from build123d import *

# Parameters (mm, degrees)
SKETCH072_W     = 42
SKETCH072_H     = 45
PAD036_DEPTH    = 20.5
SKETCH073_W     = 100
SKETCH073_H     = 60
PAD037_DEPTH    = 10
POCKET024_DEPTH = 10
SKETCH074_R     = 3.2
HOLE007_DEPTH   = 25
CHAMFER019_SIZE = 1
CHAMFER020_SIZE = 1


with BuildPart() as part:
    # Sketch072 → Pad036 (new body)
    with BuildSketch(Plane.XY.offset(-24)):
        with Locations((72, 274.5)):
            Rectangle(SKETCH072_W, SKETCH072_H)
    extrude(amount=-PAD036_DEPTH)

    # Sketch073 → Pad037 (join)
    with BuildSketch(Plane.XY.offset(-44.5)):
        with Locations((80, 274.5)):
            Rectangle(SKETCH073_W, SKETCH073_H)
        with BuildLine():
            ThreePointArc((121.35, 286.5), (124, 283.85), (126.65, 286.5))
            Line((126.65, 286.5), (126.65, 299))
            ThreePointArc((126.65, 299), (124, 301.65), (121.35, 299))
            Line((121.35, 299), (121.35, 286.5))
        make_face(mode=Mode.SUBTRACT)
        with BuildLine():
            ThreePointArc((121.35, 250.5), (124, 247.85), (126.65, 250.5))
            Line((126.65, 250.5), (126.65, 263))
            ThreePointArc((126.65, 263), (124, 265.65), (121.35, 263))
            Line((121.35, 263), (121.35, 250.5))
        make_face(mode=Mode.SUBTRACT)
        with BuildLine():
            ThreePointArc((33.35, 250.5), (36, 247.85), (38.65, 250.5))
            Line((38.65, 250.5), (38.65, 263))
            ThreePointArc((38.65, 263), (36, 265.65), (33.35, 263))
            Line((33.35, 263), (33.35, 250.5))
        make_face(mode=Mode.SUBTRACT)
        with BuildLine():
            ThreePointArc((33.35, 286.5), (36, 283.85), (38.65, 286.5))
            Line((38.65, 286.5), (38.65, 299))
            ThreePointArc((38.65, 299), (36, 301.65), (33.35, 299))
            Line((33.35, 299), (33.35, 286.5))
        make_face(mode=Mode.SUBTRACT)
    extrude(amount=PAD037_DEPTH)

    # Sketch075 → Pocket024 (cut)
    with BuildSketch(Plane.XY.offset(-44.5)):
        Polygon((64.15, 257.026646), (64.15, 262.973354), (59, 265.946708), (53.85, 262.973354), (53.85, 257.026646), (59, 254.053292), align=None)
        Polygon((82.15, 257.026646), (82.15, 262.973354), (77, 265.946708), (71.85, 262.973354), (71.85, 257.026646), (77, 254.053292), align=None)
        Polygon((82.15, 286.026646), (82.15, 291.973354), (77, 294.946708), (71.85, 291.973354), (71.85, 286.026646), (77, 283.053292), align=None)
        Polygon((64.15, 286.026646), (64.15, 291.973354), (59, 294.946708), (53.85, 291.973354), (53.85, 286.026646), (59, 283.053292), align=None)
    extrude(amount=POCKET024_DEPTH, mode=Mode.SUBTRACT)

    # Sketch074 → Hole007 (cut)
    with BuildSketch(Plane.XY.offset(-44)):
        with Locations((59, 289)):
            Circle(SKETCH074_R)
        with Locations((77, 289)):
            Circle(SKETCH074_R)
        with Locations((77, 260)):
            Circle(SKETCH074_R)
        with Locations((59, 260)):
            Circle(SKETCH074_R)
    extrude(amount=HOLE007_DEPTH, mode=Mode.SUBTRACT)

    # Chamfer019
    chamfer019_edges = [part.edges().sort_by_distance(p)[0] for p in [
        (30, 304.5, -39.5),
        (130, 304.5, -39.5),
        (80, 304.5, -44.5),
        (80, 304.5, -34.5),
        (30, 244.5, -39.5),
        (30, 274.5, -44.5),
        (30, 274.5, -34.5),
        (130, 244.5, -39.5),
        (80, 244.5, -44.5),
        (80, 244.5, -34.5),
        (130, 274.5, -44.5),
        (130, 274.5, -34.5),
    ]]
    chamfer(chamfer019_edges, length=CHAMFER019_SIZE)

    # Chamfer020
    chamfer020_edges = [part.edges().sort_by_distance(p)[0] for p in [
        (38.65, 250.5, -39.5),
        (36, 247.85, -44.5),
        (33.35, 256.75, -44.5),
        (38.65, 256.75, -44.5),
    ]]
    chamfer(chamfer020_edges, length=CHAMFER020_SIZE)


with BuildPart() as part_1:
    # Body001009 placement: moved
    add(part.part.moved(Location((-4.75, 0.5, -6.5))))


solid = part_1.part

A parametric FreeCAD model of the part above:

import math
import FreeCAD as App
import Part
import Sketcher
from FreeCAD import Vector
Q = App.Units.Quantity


def edges_at(feature, points):
    """Names of the edges that pass closest to the given points."""
    edges = feature.Shape.Edges
    near = lambda p: min(range(len(edges)), key=lambda i: edges[i].distToShape(Part.Vertex(*p))[0])
    return sorted({f"Edge{near(p) + 1}" for p in points})

doc = App.newDocument("Part")
body = doc.addObject("PartDesign::Body", "Body")

# Sketch on XY plane
sketch1 = body.newObject("Sketcher::SketchObject", "Sketch")
sketch1.AttachmentSupport = (doc.getObject("XY_Plane"), [""])
sketch1.MapMode = "FlatFace"
sketch1.AttachmentOffset = App.Placement(Vector(0, 0, -24), App.Rotation())
sketch1.addGeometry(Part.LineSegment(Vector(51, 297, 0), Vector(51, 252, 0)), False)
sketch1.addGeometry(Part.LineSegment(Vector(51, 252, 0), Vector(93, 252, 0)), False)
sketch1.addGeometry(Part.LineSegment(Vector(93, 252, 0), Vector(93, 297, 0)), False)
sketch1.addGeometry(Part.LineSegment(Vector(93, 297, 0), Vector(51, 297, 0)), False)
sketch1.addConstraint(Sketcher.Constraint("Coincident", 0, 2, 1, 1))
sketch1.addConstraint(Sketcher.Constraint("Coincident", 1, 2, 2, 1))
sketch1.addConstraint(Sketcher.Constraint("Coincident", 2, 2, 3, 1))
sketch1.addConstraint(Sketcher.Constraint("Coincident", 3, 2, 0, 1))
sketch1.addConstraint(Sketcher.Constraint("Vertical", 0))
sketch1.addConstraint(Sketcher.Constraint("Horizontal", 1))
sketch1.addConstraint(Sketcher.Constraint("Vertical", 2))
sketch1.addConstraint(Sketcher.Constraint("Horizontal", 3))
sketch1.addConstraint(Sketcher.Constraint("DistanceX", 1, 1, 1, 2, 42.0))
sketch1.addConstraint(Sketcher.Constraint("DistanceY", 0, 2, 0, 1, 45.0))
sketch1.addConstraint(Sketcher.Constraint("DistanceX", -1, 1, 0, 2, 51.0))
sketch1.addConstraint(Sketcher.Constraint("DistanceY", -1, 1, 0, 2, 252.0))
pad1 = body.newObject("PartDesign::Pad", "Pad")
pad1.Profile = sketch1
pad1.Length = 20.5
pad1.Reversed = True

# Sketch on XY plane
sketch2 = body.newObject("Sketcher::SketchObject", "Sketch001")
sketch2.AttachmentSupport = (doc.getObject("XY_Plane"), [""])
sketch2.MapMode = "FlatFace"
sketch2.AttachmentOffset = App.Placement(Vector(0, 0, -44.5), App.Rotation())
sketch2.addGeometry(Part.LineSegment(Vector(30, 304.5, 0), Vector(30, 244.5, 0)), False)
sketch2.addGeometry(Part.LineSegment(Vector(30, 244.5, 0), Vector(130, 244.5, 0)), False)
sketch2.addGeometry(Part.LineSegment(Vector(130, 244.5, 0), Vector(130, 304.5, 0)), False)
sketch2.addGeometry(Part.LineSegment(Vector(130, 304.5, 0), Vector(30, 304.5, 0)), False)
sketch2.addGeometry(Part.ArcOfCircle(Part.Circle(Vector(36, 250.5, 0), Vector(0, 0, 1), 2.6), math.radians(180), math.radians(360)), False)
sketch2.addGeometry(Part.LineSegment(Vector(33.4, 250.5, 0), Vector(33.4, 263, 0)), False)
sketch2.addGeometry(Part.ArcOfCircle(Part.Circle(Vector(36, 263, 0), Vector(0, 0, 1), 2.6), math.radians(0), math.radians(180)), False)
sketch2.addGeometry(Part.LineSegment(Vector(38.6, 263, 0), Vector(38.6, 250.5, 0)), False)
sketch2.addGeometry(Part.ArcOfCircle(Part.Circle(Vector(124, 250.5, 0), Vector(0, 0, 1), 2.6), math.radians(180), math.radians(360)), False)
sketch2.addGeometry(Part.LineSegment(Vector(121.3, 250.5, 0), Vector(121.3, 263, 0)), False)
sketch2.addGeometry(Part.ArcOfCircle(Part.Circle(Vector(124, 263, 0), Vector(0, 0, 1), 2.6), math.radians(0), math.radians(180)), False)
sketch2.addGeometry(Part.LineSegment(Vector(126.7, 263, 0), Vector(126.7, 250.5, 0)), False)
sketch2.addGeometry(Part.ArcOfCircle(Part.Circle(Vector(36, 286.5, 0), Vector(0, 0, 1), 2.6), math.radians(180), math.radians(360)), False)
sketch2.addGeometry(Part.LineSegment(Vector(33.4, 286.5, 0), Vector(33.4, 299, 0)), False)
sketch2.addGeometry(Part.ArcOfCircle(Part.Circle(Vector(36, 299, 0), Vector(0, 0, 1), 2.6), math.radians(0), math.radians(180)), False)
sketch2.addGeometry(Part.LineSegment(Vector(38.6, 299, 0), Vector(38.6, 286.5, 0)), False)
sketch2.addGeometry(Part.ArcOfCircle(Part.Circle(Vector(124, 286.5, 0), Vector(0, 0, 1), 2.6), math.radians(180), math.radians(360)), False)
sketch2.addGeometry(Part.LineSegment(Vector(121.3, 286.5, 0), Vector(121.3, 299, 0)), False)
sketch2.addGeometry(Part.ArcOfCircle(Part.Circle(Vector(124, 299, 0), Vector(0, 0, 1), 2.6), math.radians(0), math.radians(180)), False)
sketch2.addGeometry(Part.LineSegment(Vector(126.7, 299, 0), Vector(126.7, 286.5, 0)), False)
sketch2.addConstraint(Sketcher.Constraint("Coincident", 0, 2, 1, 1))
sketch2.addConstraint(Sketcher.Constraint("Coincident", 1, 2, 2, 1))
sketch2.addConstraint(Sketcher.Constraint("Coincident", 2, 2, 3, 1))
sketch2.addConstraint(Sketcher.Constraint("Coincident", 3, 2, 0, 1))
sketch2.addConstraint(Sketcher.Constraint("Tangent", 4, 1, 5, 1))
sketch2.addConstraint(Sketcher.Constraint("Tangent", 5, 2, 6, 2))
sketch2.addConstraint(Sketcher.Constraint("Tangent", 6, 1, 7, 1))
sketch2.addConstraint(Sketcher.Constraint("Tangent", 7, 2, 4, 2))
sketch2.addConstraint(Sketcher.Constraint("Tangent", 8, 1, 9, 1))
sketch2.addConstraint(Sketcher.Constraint("Tangent", 9, 2, 10, 2))
sketch2.addConstraint(Sketcher.Constraint("Tangent", 10, 1, 11, 1))
sketch2.addConstraint(Sketcher.Constraint("Tangent", 11, 2, 8, 2))
sketch2.addConstraint(Sketcher.Constraint("Tangent", 12, 1, 13, 1))
sketch2.addConstraint(Sketcher.Constraint("Tangent", 13, 2, 14, 2))
sketch2.addConstraint(Sketcher.Constraint("Tangent", 14, 1, 15, 1))
sketch2.addConstraint(Sketcher.Constraint("Tangent", 15, 2, 12, 2))
sketch2.addConstraint(Sketcher.Constraint("Tangent", 16, 1, 17, 1))
sketch2.addConstraint(Sketcher.Constraint("Tangent", 17, 2, 18, 2))
sketch2.addConstraint(Sketcher.Constraint("Tangent", 18, 1, 19, 1))
sketch2.addConstraint(Sketcher.Constraint("Tangent", 19, 2, 16, 2))
sketch2.addConstraint(Sketcher.Constraint("Vertical", 0))
sketch2.addConstraint(Sketcher.Constraint("Horizontal", 1))
sketch2.addConstraint(Sketcher.Constraint("Vertical", 2))
sketch2.addConstraint(Sketcher.Constraint("Horizontal", 3))
sketch2.addConstraint(Sketcher.Constraint("Vertical", 5))
sketch2.addConstraint(Sketcher.Constraint("Vertical", 7))
sketch2.addConstraint(Sketcher.Constraint("Vertical", 9))
sketch2.addConstraint(Sketcher.Constraint("Vertical", 11))
sketch2.addConstraint(Sketcher.Constraint("Vertical", 13))
sketch2.addConstraint(Sketcher.Constraint("Vertical", 15))
sketch2.addConstraint(Sketcher.Constraint("Vertical", 17))
sketch2.addConstraint(Sketcher.Constraint("Vertical", 19))
sketch2.addConstraint(Sketcher.Constraint("Equal", 6, 8))
sketch2.addConstraint(Sketcher.Constraint("Equal", 10, 12))
sketch2.addConstraint(Sketcher.Constraint("Equal", 14, 16))
sketch2.addConstraint(Sketcher.Constraint("Horizontal", 4, 3, 8, 3))
sketch2.addConstraint(Sketcher.Constraint("Horizontal", 6, 3, 10, 3))
sketch2.addConstraint(Sketcher.Constraint("Horizontal", 12, 3, 16, 3))
sketch2.addConstraint(Sketcher.Constraint("Horizontal", 14, 3, 18, 3))
sketch2.addConstraint(Sketcher.Constraint("Vertical", 6, 3, 12, 3))
sketch2.addConstraint(Sketcher.Constraint("Vertical", 10, 3, 16, 3))
sketch2.addConstraint(Sketcher.Constraint("Equal", 11, 13))
sketch2.addConstraint(Sketcher.Constraint("DistanceX", 1, 1, 1, 2, 100.0))
sketch2.addConstraint(Sketcher.Constraint("DistanceY", 0, 2, 0, 1, 60.0))
sketch2.addConstraint(Sketcher.Constraint("Radius", 4, 2.65))
sketch2.addConstraint(Sketcher.Constraint("DistanceY", 5, 1, 5, 2, 12.5))
sketch2.addConstraint(Sketcher.Constraint("DistanceX", -1, 1, 4, 3, 36.0))
sketch2.addConstraint(Sketcher.Constraint("DistanceY", -1, 1, 6, 3, 263.0))
sketch2.addConstraint(Sketcher.Constraint("DistanceX", -1, 1, 8, 3, 124.0))
sketch2.addConstraint(Sketcher.Constraint("DistanceY", -1, 1, 14, 3, 299.0))
sketch2.addConstraint(Sketcher.Constraint("DistanceX", -1, 1, 0, 2, 30.0))
sketch2.addConstraint(Sketcher.Constraint("DistanceY", 0, 2, 4, 3, 6.0))
pad2 = body.newObject("PartDesign::Pad", "Pad001")
pad2.Profile = sketch2
pad2.Length = 10

# Sketch on XY plane
sketch3 = body.newObject("Sketcher::SketchObject", "Sketch002")
sketch3.AttachmentSupport = (doc.getObject("XY_Plane"), [""])
sketch3.MapMode = "FlatFace"
sketch3.AttachmentOffset = App.Placement(Vector(0, 0, -44.5), App.Rotation())
sketch3.addGeometry(Part.LineSegment(Vector(64, 257, 0), Vector(64, 263, 0)), False)
sketch3.addGeometry(Part.LineSegment(Vector(64, 263, 0), Vector(59, 266, 0)), False)
sketch3.addGeometry(Part.LineSegment(Vector(59, 266, 0), Vector(54, 263, 0)), False)
sketch3.addGeometry(Part.LineSegment(Vector(54, 263, 0), Vector(54, 257, 0)), False)
sketch3.addGeometry(Part.LineSegment(Vector(54, 257, 0), Vector(59, 254, 0)), False)
sketch3.addGeometry(Part.LineSegment(Vector(59, 254, 0), Vector(64, 257, 0)), False)
sketch3.addGeometry(Part.LineSegment(Vector(82, 257, 0), Vector(82, 263, 0)), False)
sketch3.addGeometry(Part.LineSegment(Vector(82, 263, 0), Vector(77, 266, 0)), False)
sketch3.addGeometry(Part.LineSegment(Vector(77, 266, 0), Vector(72, 263, 0)), False)
sketch3.addGeometry(Part.LineSegment(Vector(72, 263, 0), Vector(72, 257, 0)), False)
sketch3.addGeometry(Part.LineSegment(Vector(72, 257, 0), Vector(77, 254, 0)), False)
sketch3.addGeometry(Part.LineSegment(Vector(77, 254, 0), Vector(82, 257, 0)), False)
sketch3.addGeometry(Part.LineSegment(Vector(82, 286, 0), Vector(82, 292, 0)), False)
sketch3.addGeometry(Part.LineSegment(Vector(82, 292, 0), Vector(77, 295, 0)), False)
sketch3.addGeometry(Part.LineSegment(Vector(77, 295, 0), Vector(72, 292, 0)), False)
sketch3.addGeometry(Part.LineSegment(Vector(72, 292, 0), Vector(72, 286, 0)), False)
sketch3.addGeometry(Part.LineSegment(Vector(72, 286, 0), Vector(77, 283, 0)), False)
sketch3.addGeometry(Part.LineSegment(Vector(77, 283, 0), Vector(82, 286, 0)), False)
sketch3.addGeometry(Part.LineSegment(Vector(64, 286, 0), Vector(64, 292, 0)), False)
sketch3.addGeometry(Part.LineSegment(Vector(64, 292, 0), Vector(59, 295, 0)), False)
sketch3.addGeometry(Part.LineSegment(Vector(59, 295, 0), Vector(54, 292, 0)), False)
sketch3.addGeometry(Part.LineSegment(Vector(54, 292, 0), Vector(54, 286, 0)), False)
sketch3.addGeometry(Part.LineSegment(Vector(54, 286, 0), Vector(59, 283, 0)), False)
sketch3.addGeometry(Part.LineSegment(Vector(59, 283, 0), Vector(64, 286, 0)), False)
sketch3.addConstraint(Sketcher.Constraint("Coincident", 0, 2, 1, 1))
sketch3.addConstraint(Sketcher.Constraint("Coincident", 1, 2, 2, 1))
sketch3.addConstraint(Sketcher.Constraint("Coincident", 2, 2, 3, 1))
sketch3.addConstraint(Sketcher.Constraint("Coincident", 3, 2, 4, 1))
sketch3.addConstraint(Sketcher.Constraint("Coincident", 4, 2, 5, 1))
sketch3.addConstraint(Sketcher.Constraint("Coincident", 5, 2, 0, 1))
sketch3.addConstraint(Sketcher.Constraint("Coincident", 6, 2, 7, 1))
sketch3.addConstraint(Sketcher.Constraint("Coincident", 7, 2, 8, 1))
sketch3.addConstraint(Sketcher.Constraint("Coincident", 8, 2, 9, 1))
sketch3.addConstraint(Sketcher.Constraint("Coincident", 9, 2, 10, 1))
sketch3.addConstraint(Sketcher.Constraint("Coincident", 10, 2, 11, 1))
sketch3.addConstraint(Sketcher.Constraint("Coincident", 11, 2, 6, 1))
sketch3.addConstraint(Sketcher.Constraint("Coincident", 12, 2, 13, 1))
sketch3.addConstraint(Sketcher.Constraint("Coincident", 13, 2, 14, 1))
sketch3.addConstraint(Sketcher.Constraint("Coincident", 14, 2, 15, 1))
sketch3.addConstraint(Sketcher.Constraint("Coincident", 15, 2, 16, 1))
sketch3.addConstraint(Sketcher.Constraint("Coincident", 16, 2, 17, 1))
sketch3.addConstraint(Sketcher.Constraint("Coincident", 17, 2, 12, 1))
sketch3.addConstraint(Sketcher.Constraint("Coincident", 18, 2, 19, 1))
sketch3.addConstraint(Sketcher.Constraint("Coincident", 19, 2, 20, 1))
sketch3.addConstraint(Sketcher.Constraint("Coincident", 20, 2, 21, 1))
sketch3.addConstraint(Sketcher.Constraint("Coincident", 21, 2, 22, 1))
sketch3.addConstraint(Sketcher.Constraint("Coincident", 22, 2, 23, 1))
sketch3.addConstraint(Sketcher.Constraint("Coincident", 23, 2, 18, 1))
sketch3.addConstraint(Sketcher.Constraint("Vertical", 0))
sketch3.addConstraint(Sketcher.Constraint("Vertical", 3))
sketch3.addConstraint(Sketcher.Constraint("Vertical", 6))
sketch3.addConstraint(Sketcher.Constraint("Vertical", 9))
sketch3.addConstraint(Sketcher.Constraint("Vertical", 12))
sketch3.addConstraint(Sketcher.Constraint("Vertical", 15))
sketch3.addConstraint(Sketcher.Constraint("Vertical", 18))
sketch3.addConstraint(Sketcher.Constraint("Vertical", 21))
sketch3.addConstraint(Sketcher.Constraint("Parallel", 1, 4))
sketch3.addConstraint(Sketcher.Constraint("Parallel", 2, 5))
sketch3.addConstraint(Sketcher.Constraint("Parallel", 4, 7))
sketch3.addConstraint(Sketcher.Constraint("Parallel", 5, 8))
sketch3.addConstraint(Sketcher.Constraint("Parallel", 7, 10))
sketch3.addConstraint(Sketcher.Constraint("Parallel", 8, 11))
sketch3.addConstraint(Sketcher.Constraint("Parallel", 10, 13))
sketch3.addConstraint(Sketcher.Constraint("Parallel", 11, 14))
sketch3.addConstraint(Sketcher.Constraint("Parallel", 13, 16))
sketch3.addConstraint(Sketcher.Constraint("Parallel", 14, 17))
sketch3.addConstraint(Sketcher.Constraint("Parallel", 16, 19))
sketch3.addConstraint(Sketcher.Constraint("Parallel", 17, 20))
sketch3.addConstraint(Sketcher.Constraint("Parallel", 19, 22))
sketch3.addConstraint(Sketcher.Constraint("Parallel", 20, 23))
sketch3.addConstraint(Sketcher.Constraint("Horizontal", 0, 2, 2, 2))
sketch3.addConstraint(Sketcher.Constraint("Horizontal", 3, 2, 5, 2))
sketch3.addConstraint(Sketcher.Constraint("Horizontal", 2, 2, 6, 2))
sketch3.addConstraint(Sketcher.Constraint("Horizontal", 1, 2, 7, 2))
sketch3.addConstraint(Sketcher.Constraint("Horizontal", 6, 2, 8, 2))
sketch3.addConstraint(Sketcher.Constraint("Horizontal", 5, 2, 9, 2))
sketch3.addConstraint(Sketcher.Constraint("Horizontal", 4, 2, 10, 2))
sketch3.addConstraint(Sketcher.Constraint("Horizontal", 12, 2, 14, 2))
sketch3.addConstraint(Sketcher.Constraint("Horizontal", 15, 2, 17, 2))
sketch3.addConstraint(Sketcher.Constraint("Horizontal", 14, 2, 18, 2))
sketch3.addConstraint(Sketcher.Constraint("Horizontal", 13, 2, 19, 2))
sketch3.addConstraint(Sketcher.Constraint("Horizontal", 18, 2, 20, 2))
sketch3.addConstraint(Sketcher.Constraint("Horizontal", 17, 2, 21, 2))
sketch3.addConstraint(Sketcher.Constraint("Horizontal", 16, 2, 22, 2))
sketch3.addConstraint(Sketcher.Constraint("Vertical", 1, 2, 4, 2))
sketch3.addConstraint(Sketcher.Constraint("Vertical", 11, 2, 12, 2))
sketch3.addConstraint(Sketcher.Constraint("Vertical", 10, 2, 13, 2))
sketch3.addConstraint(Sketcher.Constraint("Vertical", 5, 2, 18, 2))
sketch3.addConstraint(Sketcher.Constraint("Equal", 9, 12))
sketch3.addConstraint(Sketcher.Constraint("Angle", 1, Q("149.999999 deg")))
sketch3.addConstraint(Sketcher.Constraint("DistanceX", -1, 1, 1, 2, 59.0))
sketch3.addConstraint(Sketcher.Constraint("DistanceX", -1, 1, 7, 2, 77.0))
sketch3.addConstraint(Sketcher.Constraint("DistanceY", 6, 2, 12, 2, 29.0))
sketch3.addConstraint(Sketcher.Constraint("DistanceX", 2, 2, 0, 2, 10.3))
sketch3.addConstraint(Sketcher.Constraint("DistanceY", 0, 1, 0, 2, 5.946708))
sketch3.addConstraint(Sketcher.Constraint("DistanceY", -1, 1, 1, 2, 265.946708))
pocket1 = body.newObject("PartDesign::Pocket", "Pocket")
pocket1.Profile = sketch3
pocket1.Length = 10
pocket1.Reversed = True

# Sketch on XY plane
sketch4 = body.newObject("Sketcher::SketchObject", "Sketch003")
sketch4.AttachmentSupport = (doc.getObject("XY_Plane"), [""])
sketch4.MapMode = "FlatFace"
sketch4.AttachmentOffset = App.Placement(Vector(0, 0, -44), App.Rotation())
sketch4.addGeometry(Part.Circle(Vector(59, 289, 0), Vector(0, 0, 1), 3.2), False)
sketch4.addGeometry(Part.Circle(Vector(77, 289, 0), Vector(0, 0, 1), 3.2), False)
sketch4.addGeometry(Part.Circle(Vector(77, 260, 0), Vector(0, 0, 1), 3.2), False)
sketch4.addGeometry(Part.Circle(Vector(59, 260, 0), Vector(0, 0, 1), 3.2), False)
sketch4.addConstraint(Sketcher.Constraint("Equal", 0, 1))
sketch4.addConstraint(Sketcher.Constraint("Equal", 1, 2))
sketch4.addConstraint(Sketcher.Constraint("Equal", 2, 3))
sketch4.addConstraint(Sketcher.Constraint("Horizontal", 0, 3, 1, 3))
sketch4.addConstraint(Sketcher.Constraint("Horizontal", 2, 3, 3, 3))
sketch4.addConstraint(Sketcher.Constraint("Vertical", 1, 3, 2, 3))
sketch4.addConstraint(Sketcher.Constraint("Vertical", 0, 3, 3, 3))
sketch4.addConstraint(Sketcher.Constraint("Diameter", 0, 6.4))
sketch4.addConstraint(Sketcher.Constraint("DistanceX", -1, 1, 0, 3, 59.0))
sketch4.addConstraint(Sketcher.Constraint("DistanceY", -1, 1, 0, 3, 289.0))
sketch4.addConstraint(Sketcher.Constraint("DistanceX", -1, 1, 1, 3, 77.0))
sketch4.addConstraint(Sketcher.Constraint("DistanceY", -1, 1, 2, 3, 260.0))
pocket2 = body.newObject("PartDesign::Pocket", "Pocket001")
pocket2.Profile = sketch4
pocket2.Length = 25
pocket2.Reversed = True
doc.recompute()

chamfer = body.newObject("PartDesign::Chamfer", "Chamfer")
chamfer.Base = (pocket2, edges_at(pocket2, [
    (30, 304.5, -39.5),
    (130, 304.5, -39.5),
    (80, 304.5, -44.5),
    (80, 304.5, -34.5),
    (30, 244.5, -39.5),
    (30, 274.5, -44.5),
    (30, 274.5, -34.5),
    (130, 244.5, -39.5),
    (80, 244.5, -44.5),
    (80, 244.5, -34.5),
    (130, 274.5, -44.5),
    (130, 274.5, -34.5),
]))
chamfer.Size = 1
doc.recompute()

chamfer2 = body.newObject("PartDesign::Chamfer", "Chamfer001")
chamfer2.Base = (chamfer, edges_at(chamfer, [
    (38.65, 250.5, -39.5),
    (36, 247.85, -44.5),
    (33.35, 256.75, -44.5),
    (38.65, 256.75, -44.5),
]))
chamfer2.Size = 1
body2 = doc.addObject("PartDesign::Body", "Body001")
doc.recompute()

body.Placement = App.Placement(Vector(-4.75, 0.5, -6.5), App.Rotation(Vector(0, 0, 1), 0))
boolean = body2.newObject("PartDesign::Boolean", "Boolean")
boolean.Type = "Fuse"
boolean.addObjects([body])

doc.recompute()
